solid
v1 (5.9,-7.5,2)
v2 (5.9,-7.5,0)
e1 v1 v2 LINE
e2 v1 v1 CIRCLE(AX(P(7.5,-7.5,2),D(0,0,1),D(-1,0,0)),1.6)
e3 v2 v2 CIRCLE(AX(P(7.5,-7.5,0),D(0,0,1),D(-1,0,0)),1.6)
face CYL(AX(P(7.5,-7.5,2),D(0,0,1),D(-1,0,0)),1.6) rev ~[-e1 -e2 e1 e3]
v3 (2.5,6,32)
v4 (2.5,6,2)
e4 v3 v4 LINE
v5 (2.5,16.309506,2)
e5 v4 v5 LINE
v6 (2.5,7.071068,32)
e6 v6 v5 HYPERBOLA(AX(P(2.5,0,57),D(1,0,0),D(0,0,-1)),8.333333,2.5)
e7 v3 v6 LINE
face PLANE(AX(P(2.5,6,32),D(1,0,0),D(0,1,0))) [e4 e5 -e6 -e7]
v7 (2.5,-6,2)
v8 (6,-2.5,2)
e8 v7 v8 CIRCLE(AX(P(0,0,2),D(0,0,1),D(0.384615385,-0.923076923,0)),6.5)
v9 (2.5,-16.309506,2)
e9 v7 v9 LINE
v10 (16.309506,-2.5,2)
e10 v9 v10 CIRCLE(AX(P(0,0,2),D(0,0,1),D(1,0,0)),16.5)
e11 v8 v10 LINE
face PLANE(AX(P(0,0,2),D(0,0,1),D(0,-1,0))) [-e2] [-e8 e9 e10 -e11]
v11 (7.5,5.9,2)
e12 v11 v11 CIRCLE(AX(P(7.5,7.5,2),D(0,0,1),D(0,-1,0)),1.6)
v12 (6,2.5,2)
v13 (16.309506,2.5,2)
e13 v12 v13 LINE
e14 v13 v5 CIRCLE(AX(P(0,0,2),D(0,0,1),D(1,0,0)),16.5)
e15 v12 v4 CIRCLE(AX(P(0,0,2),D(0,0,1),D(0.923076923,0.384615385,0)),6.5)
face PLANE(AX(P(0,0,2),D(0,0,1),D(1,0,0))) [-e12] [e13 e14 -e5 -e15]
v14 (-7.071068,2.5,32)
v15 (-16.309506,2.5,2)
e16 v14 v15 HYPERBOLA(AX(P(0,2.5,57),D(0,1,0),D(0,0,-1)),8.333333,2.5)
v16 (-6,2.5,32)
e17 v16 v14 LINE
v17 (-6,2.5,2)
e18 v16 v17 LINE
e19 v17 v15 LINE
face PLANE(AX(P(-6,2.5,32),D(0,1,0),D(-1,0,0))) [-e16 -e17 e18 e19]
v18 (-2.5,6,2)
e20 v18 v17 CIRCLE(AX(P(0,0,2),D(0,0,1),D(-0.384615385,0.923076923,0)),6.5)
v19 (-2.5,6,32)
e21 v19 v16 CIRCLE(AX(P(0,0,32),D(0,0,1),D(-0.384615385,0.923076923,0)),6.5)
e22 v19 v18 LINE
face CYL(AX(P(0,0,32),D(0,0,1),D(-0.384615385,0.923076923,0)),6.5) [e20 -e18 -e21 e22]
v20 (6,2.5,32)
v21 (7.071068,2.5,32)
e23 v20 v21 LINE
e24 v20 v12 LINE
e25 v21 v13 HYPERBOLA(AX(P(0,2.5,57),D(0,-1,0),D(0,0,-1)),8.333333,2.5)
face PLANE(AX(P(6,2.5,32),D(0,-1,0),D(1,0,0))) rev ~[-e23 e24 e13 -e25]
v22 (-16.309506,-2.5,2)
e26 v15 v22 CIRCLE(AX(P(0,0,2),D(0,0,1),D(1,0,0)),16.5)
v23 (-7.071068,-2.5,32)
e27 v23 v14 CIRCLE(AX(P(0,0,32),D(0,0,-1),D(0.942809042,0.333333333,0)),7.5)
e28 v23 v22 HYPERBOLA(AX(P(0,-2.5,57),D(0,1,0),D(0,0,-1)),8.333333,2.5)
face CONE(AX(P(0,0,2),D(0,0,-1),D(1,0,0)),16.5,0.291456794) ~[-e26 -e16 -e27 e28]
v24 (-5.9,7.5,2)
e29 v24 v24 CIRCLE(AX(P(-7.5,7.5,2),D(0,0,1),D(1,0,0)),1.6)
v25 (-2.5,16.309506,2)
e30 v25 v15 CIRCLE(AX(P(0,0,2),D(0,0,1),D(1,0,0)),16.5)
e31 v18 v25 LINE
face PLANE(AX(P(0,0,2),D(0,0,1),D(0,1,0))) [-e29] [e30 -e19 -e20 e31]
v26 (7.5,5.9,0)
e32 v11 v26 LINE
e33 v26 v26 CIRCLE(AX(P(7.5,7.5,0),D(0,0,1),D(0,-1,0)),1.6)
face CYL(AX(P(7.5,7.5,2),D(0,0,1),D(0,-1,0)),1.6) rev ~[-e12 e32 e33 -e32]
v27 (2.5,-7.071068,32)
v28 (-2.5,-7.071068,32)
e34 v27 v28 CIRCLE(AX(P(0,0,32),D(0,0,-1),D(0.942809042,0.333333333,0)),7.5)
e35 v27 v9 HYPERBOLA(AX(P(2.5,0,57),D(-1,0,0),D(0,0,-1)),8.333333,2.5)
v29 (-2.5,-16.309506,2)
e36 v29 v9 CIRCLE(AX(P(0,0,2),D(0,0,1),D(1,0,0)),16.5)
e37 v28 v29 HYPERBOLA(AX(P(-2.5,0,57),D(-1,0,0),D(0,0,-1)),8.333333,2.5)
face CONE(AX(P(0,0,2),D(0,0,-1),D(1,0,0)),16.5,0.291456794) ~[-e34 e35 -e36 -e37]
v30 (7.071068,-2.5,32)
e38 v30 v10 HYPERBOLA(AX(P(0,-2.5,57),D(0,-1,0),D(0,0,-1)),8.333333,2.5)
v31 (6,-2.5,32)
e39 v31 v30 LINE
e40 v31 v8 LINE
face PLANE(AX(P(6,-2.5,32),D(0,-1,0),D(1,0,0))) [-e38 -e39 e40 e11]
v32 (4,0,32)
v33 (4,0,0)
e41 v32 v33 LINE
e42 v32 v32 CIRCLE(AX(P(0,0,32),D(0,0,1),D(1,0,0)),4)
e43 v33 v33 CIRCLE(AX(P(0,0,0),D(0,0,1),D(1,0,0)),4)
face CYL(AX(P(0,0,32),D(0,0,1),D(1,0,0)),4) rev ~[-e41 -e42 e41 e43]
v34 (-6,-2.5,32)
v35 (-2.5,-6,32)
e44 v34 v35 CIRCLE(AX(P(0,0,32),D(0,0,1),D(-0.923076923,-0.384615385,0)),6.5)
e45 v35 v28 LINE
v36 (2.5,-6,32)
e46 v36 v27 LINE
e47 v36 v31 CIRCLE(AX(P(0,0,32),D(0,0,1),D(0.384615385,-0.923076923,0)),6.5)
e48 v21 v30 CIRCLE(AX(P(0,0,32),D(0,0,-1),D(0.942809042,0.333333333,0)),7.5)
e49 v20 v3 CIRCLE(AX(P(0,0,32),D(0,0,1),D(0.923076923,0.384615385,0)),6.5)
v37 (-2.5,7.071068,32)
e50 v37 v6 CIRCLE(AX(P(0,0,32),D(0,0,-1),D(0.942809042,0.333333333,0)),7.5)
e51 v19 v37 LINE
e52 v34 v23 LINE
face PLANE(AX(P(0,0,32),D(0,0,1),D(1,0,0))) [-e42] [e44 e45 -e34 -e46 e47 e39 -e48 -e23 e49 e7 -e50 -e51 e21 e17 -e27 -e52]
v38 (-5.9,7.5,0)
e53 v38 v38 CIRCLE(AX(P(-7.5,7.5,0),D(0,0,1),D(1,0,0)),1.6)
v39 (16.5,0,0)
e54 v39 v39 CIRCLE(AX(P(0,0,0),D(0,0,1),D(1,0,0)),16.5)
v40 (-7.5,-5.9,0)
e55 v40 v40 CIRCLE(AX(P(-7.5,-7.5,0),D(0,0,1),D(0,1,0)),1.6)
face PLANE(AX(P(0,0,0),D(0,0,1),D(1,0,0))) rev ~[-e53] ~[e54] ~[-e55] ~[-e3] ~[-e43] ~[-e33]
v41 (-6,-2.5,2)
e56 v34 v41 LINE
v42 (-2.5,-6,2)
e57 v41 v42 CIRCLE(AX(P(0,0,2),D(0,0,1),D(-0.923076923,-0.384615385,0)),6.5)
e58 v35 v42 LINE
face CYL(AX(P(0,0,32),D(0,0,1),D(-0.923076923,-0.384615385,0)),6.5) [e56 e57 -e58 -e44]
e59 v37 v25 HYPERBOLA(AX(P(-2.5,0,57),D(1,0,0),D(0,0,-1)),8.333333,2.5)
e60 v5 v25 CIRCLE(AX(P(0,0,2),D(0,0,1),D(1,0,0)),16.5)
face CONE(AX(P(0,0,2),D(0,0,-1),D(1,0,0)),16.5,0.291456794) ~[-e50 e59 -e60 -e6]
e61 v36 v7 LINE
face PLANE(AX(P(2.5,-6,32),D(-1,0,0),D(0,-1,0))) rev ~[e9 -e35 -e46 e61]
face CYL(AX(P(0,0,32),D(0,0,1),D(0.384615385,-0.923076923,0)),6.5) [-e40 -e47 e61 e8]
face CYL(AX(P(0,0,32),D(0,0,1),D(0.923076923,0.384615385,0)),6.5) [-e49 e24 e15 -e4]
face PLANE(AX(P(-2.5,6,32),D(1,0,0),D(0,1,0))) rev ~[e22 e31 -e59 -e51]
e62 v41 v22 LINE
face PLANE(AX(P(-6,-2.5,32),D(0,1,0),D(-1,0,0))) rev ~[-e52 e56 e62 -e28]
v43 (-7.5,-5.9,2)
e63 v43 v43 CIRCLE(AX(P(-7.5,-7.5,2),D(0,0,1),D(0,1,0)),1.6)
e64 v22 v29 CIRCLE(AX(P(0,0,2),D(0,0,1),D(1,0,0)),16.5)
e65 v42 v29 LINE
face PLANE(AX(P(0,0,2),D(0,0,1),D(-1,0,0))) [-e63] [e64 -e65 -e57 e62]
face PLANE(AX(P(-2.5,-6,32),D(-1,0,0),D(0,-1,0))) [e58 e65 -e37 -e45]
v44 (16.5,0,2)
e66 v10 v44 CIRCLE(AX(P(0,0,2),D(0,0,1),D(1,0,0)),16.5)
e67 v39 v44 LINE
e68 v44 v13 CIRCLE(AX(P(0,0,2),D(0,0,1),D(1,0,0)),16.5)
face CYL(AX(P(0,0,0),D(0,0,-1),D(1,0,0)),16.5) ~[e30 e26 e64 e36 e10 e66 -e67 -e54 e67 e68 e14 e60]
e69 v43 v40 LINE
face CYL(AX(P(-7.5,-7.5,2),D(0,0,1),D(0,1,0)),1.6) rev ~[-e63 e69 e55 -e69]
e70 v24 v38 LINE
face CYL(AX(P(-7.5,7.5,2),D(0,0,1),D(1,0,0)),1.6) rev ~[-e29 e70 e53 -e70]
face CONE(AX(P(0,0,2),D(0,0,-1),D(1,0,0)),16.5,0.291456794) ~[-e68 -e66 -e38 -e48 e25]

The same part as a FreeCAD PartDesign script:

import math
import FreeCAD as App
import Part
import Sketcher
from FreeCAD import Vector


def edges_at(feature, points):
    """Names of the edges that pass closest to the given points."""
    edges = feature.Shape.Edges
    near = lambda p: min(range(len(edges)), key=lambda i: edges[i].distToShape(Part.Vertex(*p))[0])
    return sorted({f"Edge{near(p) + 1}" for p in points})

doc = App.newDocument("Part")
body = doc.addObject("PartDesign::Body", "Body")

# Sketch on XY plane
sketch1 = doc.addObject("Sketcher::SketchObject", "Sketch")
body.addObject(sketch1)
sketch1.AttachmentSupport = (doc.XY_Plane, [""])
sketch1.MapMode = "FlatFace"
sketch1.addGeometry(Part.Circle(Vector(0, 0, 0), Vector(0, 0, 1), 16.5), False)
sketch1.addConstraint([
    Sketcher.Constraint("Coincident", 0, 3, -1, 1),
    Sketcher.Constraint("Diameter", 0, 33.0),
])
pad1 = doc.addObject("PartDesign::Pad", "Pad")
body.addObject(pad1)
pad1.Profile = sketch1
pad1.Length = 32

# Sketch on XY plane
sketch2 = doc.addObject("Sketcher::SketchObject", "Sketch001")
body.addObject(sketch2)
sketch2.AttachmentSupport = (doc.XY_Plane, [""])
sketch2.MapMode = "FlatFace"
sketch2.AttachmentOffset = App.Placement(Vector(0, 0, 32), App.Rotation())
sketch2.addGeometry(Part.Circle(Vector(0, 0, 0), Vector(0, 0, 1), 4), False)
sketch2.addConstraint([
    Sketcher.Constraint("Coincident", 0, 3, -1, 1),
    Sketcher.Constraint("Diameter", 0, 8.0),
])
pocket1 = doc.addObject("PartDesign::Pocket", "Pocket")
body.addObject(pocket1)
pocket1.Profile = sketch2
pocket1.Type = "ThroughAll"
doc.recompute()

chamfer = doc.addObject("PartDesign::Chamfer", "Chamfer")
body.addObject(chamfer)
chamfer.Base = (pocket1, edges_at(pocket1, [(-16.5, 0, 32)]))
chamfer.ChamferType = "Two distances"
chamfer.Size = 9
chamfer.Size2 = 30
chamfer.FlipDirection = True

# Sketch on XY plane
sketch3 = doc.addObject("Sketcher::SketchObject", "Sketch002")
body.addObject(sketch3)
sketch3.AttachmentSupport = (doc.XY_Plane, [""])
sketch3.MapMode = "FlatFace"
sketch3.AttachmentOffset = App.Placement(Vector(0, 0, 32), App.Rotation())
sketch3.addGeometry([
    Part.LineSegment(Vector(2.5, 16.5, 0), Vector(2.5, 6, 0)),
    Part.ArcOfCircle(Part.Circle(Vector(0, 0, 0), Vector(0, 0, 1), 6.5), math.radians(22.619865), math.radians(67.380135)),
    Part.LineSegment(Vector(6, 2.5, 0), Vector(16.5, 2.5, 0)),
    Part.ArcOfCircle(Part.Circle(Vector(0, 0, 0), Vector(0, 0, 1), 16.688319), math.radians(8.615648), math.radians(81.384352)),
], False)
sketch3.addConstraint([
    Sketcher.Constraint("Coincident", 0, 2, 1, 2),
    Sketcher.Constraint("Coincident", 1, 1, 2, 1),
    Sketcher.Constraint("Coincident", 2, 2, 3, 1),
    Sketcher.Constraint("Coincident", 3, 2, 0, 1),
    Sketcher.Constraint("Vertical", 0),
    Sketcher.Constraint("Horizontal", 2),
    Sketcher.Constraint("Coincident", 1, 3, -1, 1),
    Sketcher.Constraint("Coincident", 3, 3, -1, 1),
    Sketcher.Constraint("Equal", 2, 0),
    Sketcher.Constraint("DistanceY", -1, 1, 0, 2, 6.0),
    Sketcher.Constraint("DistanceX", -1, 1, 0, 2, 2.5),
    Sketcher.Constraint("DistanceX", -1, 1, 2, 2, 16.5),
])
pocket2 = doc.addObject("PartDesign::Pocket", "Pocket001")
body.addObject(pocket2)
pocket2.Profile = sketch3
pocket2.Length = 30
doc.recompute()

polarpattern = doc.addObject("PartDesign::PolarPattern", "PolarPattern")
body.addObject(polarpattern)
polarpattern.Originals = [pocket2]
polarpattern.Axis = (doc.Z_Axis, [""])
polarpattern.Angle = 360
polarpattern.Occurrences = 4
body.Tip = polarpattern

# Sketch on XY plane
sketch4 = doc.addObject("Sketcher::SketchObject", "Sketch003")
body.addObject(sketch4)
sketch4.AttachmentSupport = (doc.XY_Plane, [""])
sketch4.MapMode = "FlatFace"
sketch4.AttachmentOffset = App.Placement(Vector(0, 0, 2), App.Rotation())
sketch4.addGeometry(Part.Circle(Vector(-7.5, 7.5, 0), Vector(0, 0, 1), 1.6), False)
sketch4.addConstraint([
    Sketcher.Constraint("Diameter", 0, 3.2),
    Sketcher.Constraint("DistanceX", 0, 3, -1, 1, 7.5),
    Sketcher.Constraint("DistanceY", -1, 1, 0, 3, 7.5),
])
pocket3 = doc.addObject("PartDesign::Pocket", "Pocket002")
body.addObject(pocket3)
pocket3.Profile = sketch4
pocket3.Type = "ThroughAll"
doc.recompute()

polarpattern2 = doc.addObject("PartDesign::PolarPattern", "PolarPattern001")
body.addObject(polarpattern2)
polarpattern2.Originals = [pocket3]
polarpattern2.Axis = (doc.Z_Axis, [""])
polarpattern2.Angle = 360
polarpattern2.Occurrences = 4
body.Tip = polarpattern2

doc.recompute()
